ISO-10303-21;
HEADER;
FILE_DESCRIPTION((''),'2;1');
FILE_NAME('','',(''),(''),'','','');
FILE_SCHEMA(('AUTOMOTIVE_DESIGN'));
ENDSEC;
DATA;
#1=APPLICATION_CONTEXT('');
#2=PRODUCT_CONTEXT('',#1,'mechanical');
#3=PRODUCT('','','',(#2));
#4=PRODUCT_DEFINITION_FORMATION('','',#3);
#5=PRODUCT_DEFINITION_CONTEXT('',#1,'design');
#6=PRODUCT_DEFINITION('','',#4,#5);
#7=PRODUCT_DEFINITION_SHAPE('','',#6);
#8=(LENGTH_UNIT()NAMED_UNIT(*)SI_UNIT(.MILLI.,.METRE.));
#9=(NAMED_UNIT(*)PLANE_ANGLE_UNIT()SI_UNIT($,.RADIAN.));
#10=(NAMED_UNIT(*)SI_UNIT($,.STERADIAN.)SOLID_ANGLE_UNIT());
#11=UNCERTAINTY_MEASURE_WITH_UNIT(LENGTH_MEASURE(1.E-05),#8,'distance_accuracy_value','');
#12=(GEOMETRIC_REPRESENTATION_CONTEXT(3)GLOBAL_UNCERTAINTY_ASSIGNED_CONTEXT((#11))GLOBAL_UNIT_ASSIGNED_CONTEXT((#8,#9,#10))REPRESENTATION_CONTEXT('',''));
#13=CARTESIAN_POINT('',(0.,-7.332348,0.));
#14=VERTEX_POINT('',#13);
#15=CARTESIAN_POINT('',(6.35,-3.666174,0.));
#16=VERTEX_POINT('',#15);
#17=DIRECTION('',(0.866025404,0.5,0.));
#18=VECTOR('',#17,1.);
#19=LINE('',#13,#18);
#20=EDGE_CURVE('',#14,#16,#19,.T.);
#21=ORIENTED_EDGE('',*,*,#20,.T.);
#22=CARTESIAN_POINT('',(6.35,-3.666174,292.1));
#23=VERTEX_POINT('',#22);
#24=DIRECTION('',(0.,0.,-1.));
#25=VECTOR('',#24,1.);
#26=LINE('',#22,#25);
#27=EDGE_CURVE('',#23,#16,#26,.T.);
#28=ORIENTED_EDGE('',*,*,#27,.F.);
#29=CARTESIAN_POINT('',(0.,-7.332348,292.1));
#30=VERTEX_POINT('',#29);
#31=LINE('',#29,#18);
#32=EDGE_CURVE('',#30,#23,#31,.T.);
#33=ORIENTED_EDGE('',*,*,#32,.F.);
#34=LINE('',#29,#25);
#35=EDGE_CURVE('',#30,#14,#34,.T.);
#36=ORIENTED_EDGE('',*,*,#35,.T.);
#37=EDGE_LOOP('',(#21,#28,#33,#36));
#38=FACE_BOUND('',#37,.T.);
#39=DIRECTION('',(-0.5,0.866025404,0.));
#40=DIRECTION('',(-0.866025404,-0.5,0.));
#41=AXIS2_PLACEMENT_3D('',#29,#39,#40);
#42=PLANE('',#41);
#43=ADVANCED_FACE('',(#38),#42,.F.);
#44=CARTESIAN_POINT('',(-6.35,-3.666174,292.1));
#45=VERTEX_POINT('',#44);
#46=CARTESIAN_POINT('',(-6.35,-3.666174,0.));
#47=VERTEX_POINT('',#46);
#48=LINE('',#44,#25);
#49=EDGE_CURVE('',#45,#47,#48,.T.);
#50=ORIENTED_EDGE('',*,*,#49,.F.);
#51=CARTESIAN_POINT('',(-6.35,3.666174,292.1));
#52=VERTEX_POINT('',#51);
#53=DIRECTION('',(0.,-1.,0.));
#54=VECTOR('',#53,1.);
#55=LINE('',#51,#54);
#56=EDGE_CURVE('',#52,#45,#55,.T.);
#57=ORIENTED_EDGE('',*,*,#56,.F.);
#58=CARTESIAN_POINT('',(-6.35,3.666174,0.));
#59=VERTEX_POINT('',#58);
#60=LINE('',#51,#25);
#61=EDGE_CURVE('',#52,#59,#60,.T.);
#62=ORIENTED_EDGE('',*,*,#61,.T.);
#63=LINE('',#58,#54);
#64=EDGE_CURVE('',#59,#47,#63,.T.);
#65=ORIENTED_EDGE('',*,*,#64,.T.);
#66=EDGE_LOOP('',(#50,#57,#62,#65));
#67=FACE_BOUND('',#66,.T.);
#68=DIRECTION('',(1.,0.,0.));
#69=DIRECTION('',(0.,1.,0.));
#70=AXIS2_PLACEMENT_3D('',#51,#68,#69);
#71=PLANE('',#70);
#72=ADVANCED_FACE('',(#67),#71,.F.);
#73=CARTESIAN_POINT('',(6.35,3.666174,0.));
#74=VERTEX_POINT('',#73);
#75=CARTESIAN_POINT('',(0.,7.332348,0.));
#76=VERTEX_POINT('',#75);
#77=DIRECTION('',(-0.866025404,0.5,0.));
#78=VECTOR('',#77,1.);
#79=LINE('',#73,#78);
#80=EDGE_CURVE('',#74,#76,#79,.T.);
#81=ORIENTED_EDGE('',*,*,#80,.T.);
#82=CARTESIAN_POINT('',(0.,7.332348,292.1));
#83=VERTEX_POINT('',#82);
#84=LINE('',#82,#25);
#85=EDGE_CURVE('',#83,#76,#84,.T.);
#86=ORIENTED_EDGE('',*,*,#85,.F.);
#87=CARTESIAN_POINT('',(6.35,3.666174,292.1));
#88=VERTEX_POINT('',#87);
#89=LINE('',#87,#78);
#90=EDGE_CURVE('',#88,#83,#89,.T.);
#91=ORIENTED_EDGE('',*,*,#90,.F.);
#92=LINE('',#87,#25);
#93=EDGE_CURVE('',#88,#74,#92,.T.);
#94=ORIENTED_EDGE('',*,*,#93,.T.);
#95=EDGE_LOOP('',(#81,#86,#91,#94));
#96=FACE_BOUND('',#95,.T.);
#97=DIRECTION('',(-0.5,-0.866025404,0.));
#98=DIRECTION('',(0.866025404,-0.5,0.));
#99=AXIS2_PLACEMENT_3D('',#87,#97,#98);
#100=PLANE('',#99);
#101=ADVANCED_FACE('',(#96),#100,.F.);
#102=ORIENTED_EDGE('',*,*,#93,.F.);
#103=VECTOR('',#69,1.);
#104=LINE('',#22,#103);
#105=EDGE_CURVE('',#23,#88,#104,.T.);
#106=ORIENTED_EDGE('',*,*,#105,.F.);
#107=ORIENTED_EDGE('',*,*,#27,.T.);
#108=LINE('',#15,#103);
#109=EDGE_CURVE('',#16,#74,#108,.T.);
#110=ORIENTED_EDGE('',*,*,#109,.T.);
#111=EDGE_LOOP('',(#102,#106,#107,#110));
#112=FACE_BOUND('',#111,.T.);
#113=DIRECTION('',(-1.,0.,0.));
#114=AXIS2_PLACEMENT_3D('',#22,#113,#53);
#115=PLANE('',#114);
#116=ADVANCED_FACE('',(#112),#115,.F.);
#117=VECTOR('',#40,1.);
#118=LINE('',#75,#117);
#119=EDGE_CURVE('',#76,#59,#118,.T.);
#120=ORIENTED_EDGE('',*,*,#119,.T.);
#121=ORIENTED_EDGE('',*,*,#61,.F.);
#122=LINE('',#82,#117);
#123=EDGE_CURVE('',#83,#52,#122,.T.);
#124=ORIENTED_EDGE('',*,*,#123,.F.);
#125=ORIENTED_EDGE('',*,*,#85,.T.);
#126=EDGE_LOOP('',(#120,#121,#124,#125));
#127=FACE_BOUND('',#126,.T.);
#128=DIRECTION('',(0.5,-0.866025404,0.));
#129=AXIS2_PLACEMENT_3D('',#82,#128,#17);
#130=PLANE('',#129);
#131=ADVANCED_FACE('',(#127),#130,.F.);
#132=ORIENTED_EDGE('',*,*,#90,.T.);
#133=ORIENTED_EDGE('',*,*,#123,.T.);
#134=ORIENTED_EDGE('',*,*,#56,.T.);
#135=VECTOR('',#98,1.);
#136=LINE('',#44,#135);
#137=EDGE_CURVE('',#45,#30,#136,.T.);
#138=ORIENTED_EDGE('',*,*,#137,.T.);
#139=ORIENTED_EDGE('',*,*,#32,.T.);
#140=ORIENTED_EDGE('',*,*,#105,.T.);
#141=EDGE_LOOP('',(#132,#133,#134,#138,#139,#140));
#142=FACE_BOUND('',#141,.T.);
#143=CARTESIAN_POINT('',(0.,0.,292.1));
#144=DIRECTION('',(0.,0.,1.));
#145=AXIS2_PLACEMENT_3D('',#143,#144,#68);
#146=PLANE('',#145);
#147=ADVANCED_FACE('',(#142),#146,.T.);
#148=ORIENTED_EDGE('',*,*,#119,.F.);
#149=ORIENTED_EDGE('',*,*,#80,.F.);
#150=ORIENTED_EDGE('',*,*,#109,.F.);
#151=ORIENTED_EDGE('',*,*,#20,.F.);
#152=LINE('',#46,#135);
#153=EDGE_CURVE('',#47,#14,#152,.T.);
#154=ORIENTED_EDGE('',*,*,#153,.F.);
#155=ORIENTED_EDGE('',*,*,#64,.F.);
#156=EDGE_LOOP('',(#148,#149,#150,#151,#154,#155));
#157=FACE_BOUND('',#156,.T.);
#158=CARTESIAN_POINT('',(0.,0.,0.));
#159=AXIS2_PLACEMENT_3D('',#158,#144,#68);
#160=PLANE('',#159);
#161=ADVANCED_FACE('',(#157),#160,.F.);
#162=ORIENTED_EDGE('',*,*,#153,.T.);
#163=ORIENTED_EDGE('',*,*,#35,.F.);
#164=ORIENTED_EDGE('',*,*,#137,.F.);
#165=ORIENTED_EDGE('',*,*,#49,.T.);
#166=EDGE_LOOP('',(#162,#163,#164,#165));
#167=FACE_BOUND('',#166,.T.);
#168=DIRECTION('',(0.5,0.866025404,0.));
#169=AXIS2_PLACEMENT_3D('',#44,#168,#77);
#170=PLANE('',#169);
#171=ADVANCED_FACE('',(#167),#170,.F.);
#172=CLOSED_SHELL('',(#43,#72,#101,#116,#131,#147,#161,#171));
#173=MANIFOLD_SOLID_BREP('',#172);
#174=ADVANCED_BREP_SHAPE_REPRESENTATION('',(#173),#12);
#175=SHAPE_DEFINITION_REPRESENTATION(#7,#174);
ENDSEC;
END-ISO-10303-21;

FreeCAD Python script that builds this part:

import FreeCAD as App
import Part
import Sketcher
from FreeCAD import Vector
Q = App.Units.Quantity


def add_polygon(sketch, points):
    """Adds a closed chain of lines whose ends are joined by coincident constraints."""
    first, n = sketch.GeometryCount, len(points)
    for a, b in zip(points, points[1:] + points[:1]):
        sketch.addGeometry(Part.LineSegment(App.Vector(*a, 0), App.Vector(*b, 0)), False)
    for i in range(n):
        sketch.addConstraint(Sketcher.Constraint("Coincident", first + i, 2, first + (i + 1) % n, 1))

doc = App.newDocument("Part")
body = doc.addObject("PartDesign::Body", "Body")

# Sketch on XY plane
sketch1 = doc.addObject("Sketcher::SketchObject", "Sketch")
body.addObject(sketch1)
sketch1.AttachmentSupport = (doc.XY_Plane, [""])
sketch1.MapMode = "FlatFace"
add_polygon(sketch1, [(6, 4), (0, 7), (-6, 4), (-6, -4), (0, -7), (6, -4)])  # lines 0-5
sketch1.addConstraint([
    Sketcher.Constraint("Vertical", 2),
    Sketcher.Constraint("Vertical", 5),
    Sketcher.Constraint("Symmetric", 0, 2, 3, 2, -1, 1),
    Sketcher.Constraint("Symmetric", 1, 2, 4, 2, -1, 1),
    Sketcher.Constraint("PointOnObject", 0, 2, -2),
    Sketcher.Constraint("Parallel", 0, 3),
    Sketcher.Constraint("Horizontal", 2, 2, 4, 2),
    Sketcher.Constraint("Angle", 0, Q("150 deg")),
    Sketcher.Constraint("DistanceX", 2, 2, 4, 2, Q("0.5 in")),
    Sketcher.Constraint("DistanceY", 2, 2, 2, 1, Q("7.332348 mm")),
])
pad1 = doc.addObject("PartDesign::Pad", "Pad")
body.addObject(pad1)
pad1.Profile = sketch1
pad1.Length = Q("11.5 in")

doc.recompute()
